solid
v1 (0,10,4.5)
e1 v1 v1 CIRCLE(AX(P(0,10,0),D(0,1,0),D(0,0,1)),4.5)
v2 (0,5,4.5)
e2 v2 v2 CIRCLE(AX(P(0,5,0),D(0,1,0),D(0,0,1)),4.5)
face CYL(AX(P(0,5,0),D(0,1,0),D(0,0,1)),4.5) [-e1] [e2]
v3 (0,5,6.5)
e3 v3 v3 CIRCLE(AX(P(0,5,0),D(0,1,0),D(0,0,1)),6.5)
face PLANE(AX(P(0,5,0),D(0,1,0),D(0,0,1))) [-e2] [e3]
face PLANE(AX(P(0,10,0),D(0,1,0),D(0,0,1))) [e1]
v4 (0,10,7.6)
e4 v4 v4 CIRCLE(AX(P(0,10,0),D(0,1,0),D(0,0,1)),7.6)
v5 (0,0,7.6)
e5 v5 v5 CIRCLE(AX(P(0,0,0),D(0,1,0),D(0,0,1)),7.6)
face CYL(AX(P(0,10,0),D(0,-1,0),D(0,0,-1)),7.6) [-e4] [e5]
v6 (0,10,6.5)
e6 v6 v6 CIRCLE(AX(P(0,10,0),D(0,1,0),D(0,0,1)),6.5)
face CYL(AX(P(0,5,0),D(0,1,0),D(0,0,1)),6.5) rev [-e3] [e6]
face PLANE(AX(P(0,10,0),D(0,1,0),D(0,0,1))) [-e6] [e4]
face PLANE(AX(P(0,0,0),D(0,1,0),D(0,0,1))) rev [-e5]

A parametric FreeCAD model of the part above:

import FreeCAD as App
import Part
import Sketcher

V = App.Vector
Q = App.Units.Quantity

doc = App.newDocument("Part")
body = doc.addObject("PartDesign::Body", "Body")

# Sketch on XZ plane
sketch1 = doc.addObject("Sketcher::SketchObject", "Sketch")
body.addObject(sketch1)
sketch1.AttachmentSupport = (doc.XZ_Plane, [""])
sketch1.MapMode = "FlatFace"
sketch1.addGeometry(Part.Circle(V(0, 0, 0), V(0, 0, 1), 8), False)
sketch1.addConstraint([
    Sketcher.Constraint("Coincident", 0, 3, -1, 1),
    Sketcher.Constraint("Diameter", 0, Q("15.2 mm")),
])
pad1 = doc.addObject("PartDesign::Pad", "Pad")
body.addObject(pad1)
pad1.Profile = sketch1
pad1.Length = 10
pad1.Reversed = True

# Sketch on XZ plane
sketch2 = doc.addObject("Sketcher::SketchObject", "Sketch001")
body.addObject(sketch2)
sketch2.AttachmentSupport = (doc.XZ_Plane, [""])
sketch2.MapMode = "FlatFace"
sketch2.AttachmentOffset = App.Placement(V(0, 0, -10), App.Rotation())
sketch2.addGeometry([
    Part.Circle(V(0, 0, 0), V(0, 0, 1), 6.5),
    Part.Circle(V(0, 0, 0), V(0, 0, 1), 4.5),
], False)
sketch2.addConstraint([
    Sketcher.Constraint("Coincident", 0, 3, -1, 1),
    Sketcher.Constraint("Coincident", 1, 3, -1, 1),
    Sketcher.Constraint("Diameter", 0, Q("13 mm")),
    Sketcher.Constraint("Diameter", 1, Q("9 mm")),
])
pocket1 = doc.addObject("PartDesign::Pocket", "Pocket")
body.addObject(pocket1)
pocket1.Profile = sketch2
pocket1.Length = 5
pocket1.Reversed = True

doc.recompute()
